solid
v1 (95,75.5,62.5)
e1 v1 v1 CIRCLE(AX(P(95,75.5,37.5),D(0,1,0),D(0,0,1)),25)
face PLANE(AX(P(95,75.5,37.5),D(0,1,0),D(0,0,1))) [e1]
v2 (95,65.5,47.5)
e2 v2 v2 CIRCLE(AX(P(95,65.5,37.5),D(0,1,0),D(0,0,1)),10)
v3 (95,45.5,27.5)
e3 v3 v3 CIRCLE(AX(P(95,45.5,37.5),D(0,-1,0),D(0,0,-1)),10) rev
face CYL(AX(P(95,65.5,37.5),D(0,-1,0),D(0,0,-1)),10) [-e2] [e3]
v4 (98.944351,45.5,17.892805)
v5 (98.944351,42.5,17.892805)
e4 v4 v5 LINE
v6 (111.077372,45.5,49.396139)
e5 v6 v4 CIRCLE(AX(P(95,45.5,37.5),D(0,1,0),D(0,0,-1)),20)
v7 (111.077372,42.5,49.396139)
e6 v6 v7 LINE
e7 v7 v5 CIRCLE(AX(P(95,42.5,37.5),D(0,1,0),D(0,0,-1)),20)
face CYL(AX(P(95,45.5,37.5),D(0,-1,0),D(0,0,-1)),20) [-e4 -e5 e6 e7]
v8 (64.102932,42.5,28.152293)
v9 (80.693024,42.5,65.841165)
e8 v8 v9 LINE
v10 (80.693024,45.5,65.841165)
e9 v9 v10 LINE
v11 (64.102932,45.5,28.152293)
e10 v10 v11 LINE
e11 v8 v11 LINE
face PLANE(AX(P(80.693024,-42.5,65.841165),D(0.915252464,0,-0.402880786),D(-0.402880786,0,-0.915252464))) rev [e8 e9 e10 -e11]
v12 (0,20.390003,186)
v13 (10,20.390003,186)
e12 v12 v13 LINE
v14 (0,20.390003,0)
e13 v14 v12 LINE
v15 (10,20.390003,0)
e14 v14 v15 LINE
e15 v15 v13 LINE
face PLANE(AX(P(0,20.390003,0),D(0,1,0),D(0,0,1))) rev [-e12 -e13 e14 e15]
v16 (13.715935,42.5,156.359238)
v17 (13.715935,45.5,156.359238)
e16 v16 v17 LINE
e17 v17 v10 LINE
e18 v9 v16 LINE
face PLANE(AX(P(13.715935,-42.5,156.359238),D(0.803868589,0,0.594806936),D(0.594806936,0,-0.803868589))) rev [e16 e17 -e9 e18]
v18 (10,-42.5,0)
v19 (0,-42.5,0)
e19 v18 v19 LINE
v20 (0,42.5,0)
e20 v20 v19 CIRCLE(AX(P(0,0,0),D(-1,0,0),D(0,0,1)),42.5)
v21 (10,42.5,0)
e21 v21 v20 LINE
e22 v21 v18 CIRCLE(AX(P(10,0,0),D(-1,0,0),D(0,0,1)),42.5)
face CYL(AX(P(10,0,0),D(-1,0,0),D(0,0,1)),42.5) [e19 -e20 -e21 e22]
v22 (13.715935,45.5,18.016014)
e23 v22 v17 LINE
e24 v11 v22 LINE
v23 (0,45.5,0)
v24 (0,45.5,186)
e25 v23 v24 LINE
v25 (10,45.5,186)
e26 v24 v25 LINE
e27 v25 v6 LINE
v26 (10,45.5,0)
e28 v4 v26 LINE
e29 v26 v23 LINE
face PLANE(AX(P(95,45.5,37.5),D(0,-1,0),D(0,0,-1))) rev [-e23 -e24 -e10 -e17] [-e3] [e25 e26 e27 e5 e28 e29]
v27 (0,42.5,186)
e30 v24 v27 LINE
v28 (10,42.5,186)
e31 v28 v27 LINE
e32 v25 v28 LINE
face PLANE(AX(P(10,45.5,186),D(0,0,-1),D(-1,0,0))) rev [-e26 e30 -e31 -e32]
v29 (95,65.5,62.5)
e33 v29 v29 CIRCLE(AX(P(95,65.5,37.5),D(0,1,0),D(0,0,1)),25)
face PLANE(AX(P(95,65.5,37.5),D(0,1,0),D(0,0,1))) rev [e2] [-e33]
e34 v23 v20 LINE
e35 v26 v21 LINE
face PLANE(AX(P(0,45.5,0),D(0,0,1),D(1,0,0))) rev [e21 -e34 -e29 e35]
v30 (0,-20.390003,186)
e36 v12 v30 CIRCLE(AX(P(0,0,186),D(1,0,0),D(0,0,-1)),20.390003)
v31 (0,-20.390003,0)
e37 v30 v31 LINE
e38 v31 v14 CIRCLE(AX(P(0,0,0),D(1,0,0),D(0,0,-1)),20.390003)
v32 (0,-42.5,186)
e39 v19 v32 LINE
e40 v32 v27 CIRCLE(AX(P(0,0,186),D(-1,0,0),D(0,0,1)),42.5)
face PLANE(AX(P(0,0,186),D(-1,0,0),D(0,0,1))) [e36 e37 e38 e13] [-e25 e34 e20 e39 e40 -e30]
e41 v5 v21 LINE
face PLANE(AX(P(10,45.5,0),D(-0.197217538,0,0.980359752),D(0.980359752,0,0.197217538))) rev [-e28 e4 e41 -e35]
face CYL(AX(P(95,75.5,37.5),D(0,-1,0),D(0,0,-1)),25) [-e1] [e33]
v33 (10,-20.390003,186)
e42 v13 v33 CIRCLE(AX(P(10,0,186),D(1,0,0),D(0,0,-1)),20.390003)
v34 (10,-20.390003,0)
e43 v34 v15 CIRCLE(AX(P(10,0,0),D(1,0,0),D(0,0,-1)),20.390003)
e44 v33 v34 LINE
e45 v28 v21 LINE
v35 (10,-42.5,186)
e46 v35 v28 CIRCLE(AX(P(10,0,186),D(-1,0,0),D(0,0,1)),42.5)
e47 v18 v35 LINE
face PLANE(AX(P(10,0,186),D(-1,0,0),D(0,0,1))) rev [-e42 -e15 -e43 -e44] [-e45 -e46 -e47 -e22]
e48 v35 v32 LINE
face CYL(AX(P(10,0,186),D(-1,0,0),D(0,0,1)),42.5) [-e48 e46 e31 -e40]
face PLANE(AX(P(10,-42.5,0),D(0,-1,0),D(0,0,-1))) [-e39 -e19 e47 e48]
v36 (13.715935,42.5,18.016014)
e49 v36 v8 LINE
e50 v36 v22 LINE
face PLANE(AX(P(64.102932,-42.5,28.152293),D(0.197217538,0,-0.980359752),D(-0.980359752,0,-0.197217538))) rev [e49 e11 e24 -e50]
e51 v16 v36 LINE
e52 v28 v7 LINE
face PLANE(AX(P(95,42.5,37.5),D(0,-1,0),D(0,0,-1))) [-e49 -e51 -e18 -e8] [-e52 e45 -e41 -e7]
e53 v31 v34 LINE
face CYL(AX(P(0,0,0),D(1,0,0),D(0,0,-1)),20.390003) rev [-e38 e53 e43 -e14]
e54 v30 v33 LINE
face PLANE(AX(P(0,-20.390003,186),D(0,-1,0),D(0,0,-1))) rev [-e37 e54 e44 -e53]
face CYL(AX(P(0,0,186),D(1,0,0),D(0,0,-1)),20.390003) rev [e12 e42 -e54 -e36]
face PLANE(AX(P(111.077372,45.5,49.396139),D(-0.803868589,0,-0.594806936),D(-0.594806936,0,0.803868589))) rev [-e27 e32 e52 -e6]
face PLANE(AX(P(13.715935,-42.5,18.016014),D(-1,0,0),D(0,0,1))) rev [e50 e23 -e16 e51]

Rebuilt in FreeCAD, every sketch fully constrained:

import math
import FreeCAD as App
import Part
import Sketcher
Q = App.Units.Quantity


def add_polygon(sketch, points):
    """Adds a closed chain of lines whose ends are joined by coincident constraints."""
    first, n = sketch.GeometryCount, len(points)
    for a, b in zip(points, points[1:] + points[:1]):
        sketch.addGeometry(Part.LineSegment(App.Vector(*a, 0), App.Vector(*b, 0)), False)
    for i in range(n):
        sketch.addConstraint(Sketcher.Constraint("Coincident", first + i, 2, first + (i + 1) % n, 1))

doc = App.newDocument("Part")
body = doc.addObject("PartDesign::Body", "Body")

sketch1 = doc.addObject("Sketcher::SketchObject", "Sketch")
body.addObject(sketch1)
sketch1.AttachmentSupport = (doc.YZ_Plane, [""])
sketch1.MapMode = "FlatFace"
sketch1.addGeometry([
    Part.LineSegment(App.Vector(42, 186, 0), App.Vector(42, 0, 0)),
    Part.ArcOfCircle(Part.Circle(App.Vector(0, 0, 0), App.Vector(0, 0, 1), 42), math.radians(180), math.radians(360)),
    Part.LineSegment(App.Vector(-42, 0, 0), App.Vector(-42, 186, 0)),
    Part.ArcOfCircle(Part.Circle(App.Vector(0, 186, 0), App.Vector(0, 0, 1), 42), math.radians(0), math.radians(180)),
], False)
sketch1.addConstraint([
    Sketcher.Constraint("Tangent", 0, 2, 1, 2),
    Sketcher.Constraint("Tangent", 1, 1, 2, 1),
    Sketcher.Constraint("Tangent", 2, 2, 3, 2),
    Sketcher.Constraint("Tangent", 3, 1, 0, 1),
    Sketcher.Constraint("Vertical", 0),
    Sketcher.Constraint("Vertical", 2),
    Sketcher.Constraint("Coincident", 1, 3, -1, 1),
    Sketcher.Constraint("Radius", 1, Q("42.5 mm")),
    Sketcher.Constraint("DistanceY", 0, 2, 0, 1, Q("186 mm")),
])
pad1 = doc.addObject("PartDesign::Pad", "Pad")
body.addObject(pad1)
pad1.Profile = sketch1
pad1.Length = 10

sketch2 = doc.addObject("Sketcher::SketchObject", "Sketch001")
body.addObject(sketch2)
sketch2.AttachmentSupport = (doc.XZ_Plane, [""])
sketch2.MapMode = "FlatFace"
sketch2.AttachmentOffset = App.Placement(App.Vector(0, 0, -42.5), App.Rotation())
sketch2.addGeometry([
    Part.LineSegment(App.Vector(99, 18, 0), App.Vector(10, 0, 0)),
    Part.LineSegment(App.Vector(10, 0, 0), App.Vector(0, 0, 0)),
    Part.LineSegment(App.Vector(0, 0, 0), App.Vector(0, 186, 0)),
    Part.LineSegment(App.Vector(0, 186, 0), App.Vector(10, 186, 0)),
    Part.LineSegment(App.Vector(10, 186, 0), App.Vector(111, 49, 0)),
    Part.ArcOfCircle(Part.Circle(App.Vector(95, 38, 0), App.Vector(0, 0, 1), 20), math.radians(-79), math.radians(36)),
], False)
sketch2.addConstraint([
    Sketcher.Constraint("Coincident", 0, 2, 1, 1),
    Sketcher.Constraint("Coincident", 1, 2, 2, 1),
    Sketcher.Constraint("Coincident", 2, 2, 3, 1),
    Sketcher.Constraint("Coincident", 3, 2, 4, 1),
    Sketcher.Constraint("Tangent", 4, 2, 5, 2),
    Sketcher.Constraint("Tangent", 5, 1, 0, 1),
    Sketcher.Constraint("Horizontal", 1),
    Sketcher.Constraint("Vertical", 2),
    Sketcher.Constraint("Horizontal", 3),
    Sketcher.Constraint("Coincident", 1, 2, -1, 1),
    Sketcher.Constraint("Vertical", 0, 2, 3, 2),
    Sketcher.Constraint("Radius", 5, Q("20 mm")),
    Sketcher.Constraint("DistanceX", 1, 2, 1, 1, Q("10 mm")),
    Sketcher.Constraint("DistanceY", 2, 1, 2, 2, Q("186 mm")),
    Sketcher.Constraint("DistanceX", -1, 1, 5, 3, Q("95 mm")),
    Sketcher.Constraint("DistanceY", -1, 1, 5, 3, Q("37.5 mm")),
])
pad2 = doc.addObject("PartDesign::Pad", "Pad001")
body.addObject(pad2)
pad2.Profile = sketch2
pad2.Length = 3
pad2.Reversed = True

sketch3 = doc.addObject("Sketcher::SketchObject", "Sketch002")
body.addObject(sketch3)
sketch3.AttachmentSupport = (doc.XZ_Plane, [""])
sketch3.MapMode = "FlatFace"
sketch3.AttachmentOffset = App.Placement(App.Vector(0, 0, -45.5), App.Rotation())
sketch3.addGeometry(Part.Circle(App.Vector(95, 38, 0), App.Vector(0, 0, 1), 10), False)
sketch3.addConstraint([
    Sketcher.Constraint("Diameter", 0, Q("20 mm")),
    Sketcher.Constraint("DistanceX", -1, 1, 0, 3, Q("95 mm")),
    Sketcher.Constraint("DistanceY", -1, 1, 0, 3, Q("37.5 mm")),
])
pad3 = doc.addObject("PartDesign::Pad", "Pad002")
body.addObject(pad3)
pad3.Profile = sketch3
pad3.Length = 20
pad3.Reversed = True

sketch4 = doc.addObject("Sketcher::SketchObject", "Sketch003")
body.addObject(sketch4)
sketch4.AttachmentSupport = (doc.YZ_Plane, [""])
sketch4.MapMode = "FlatFace"
sketch4.AttachmentOffset = App.Placement(App.Vector(0, 0, 10), App.Rotation())
sketch4.addGeometry([
    Part.LineSegment(App.Vector(20, 0, 0), App.Vector(20, 186, 0)),
    Part.ArcOfCircle(Part.Circle(App.Vector(0, 186, 0), App.Vector(0, 0, 1), 20), math.radians(0), math.radians(180)),
    Part.LineSegment(App.Vector(-20, 186, 0), App.Vector(-20, 0, 0)),
    Part.ArcOfCircle(Part.Circle(App.Vector(0, 0, 0), App.Vector(0, 0, 1), 20), math.radians(180), math.radians(360)),
], False)
sketch4.addConstraint([
    Sketcher.Constraint("Tangent", 0, 2, 1, 1),
    Sketcher.Constraint("Tangent", 1, 2, 2, 1),
    Sketcher.Constraint("Tangent", 2, 2, 3, 1),
    Sketcher.Constraint("Tangent", 3, 2, 0, 1),
    Sketcher.Constraint("Vertical", 0),
    Sketcher.Constraint("Vertical", 2),
    Sketcher.Constraint("Coincident", 3, 3, -1, 1),
    Sketcher.Constraint("DistanceY", 0, 1, 0, 2, Q("186 mm")),
    Sketcher.Constraint("Radius", 1, Q("20.390003 mm")),
])
pocket1 = doc.addObject("PartDesign::Pocket", "Pocket")
body.addObject(pocket1)
pocket1.Profile = sketch4
pocket1.Type = "ThroughAll"

sketch5 = doc.addObject("Sketcher::SketchObject", "Sketch004")
body.addObject(sketch5)
sketch5.AttachmentSupport = (doc.XZ_Plane, [""])
sketch5.MapMode = "FlatFace"
sketch5.AttachmentOffset = App.Placement(App.Vector(0, 0, -45.5), App.Rotation())
add_polygon(sketch5, [(64, 28), (14, 18), (14, 156), (81, 66)])
sketch5.addConstraint([
    Sketcher.Constraint("Vertical", 1),
    Sketcher.Constraint("DistanceY", 1, 1, 1, 2, Q("138.343223 mm")),
    Sketcher.Constraint("DistanceX", -1, 1, 3, 2, Q("64.102932 mm")),
    Sketcher.Constraint("DistanceX", 0, 2, 2, 2, Q("66.977089 mm")),
    Sketcher.Constraint("DistanceY", 0, 2, 2, 2, Q("47.825151 mm")),
    Sketcher.Constraint("DistanceX", 3, 2, 2, 2, Q("16.590092 mm")),
    Sketcher.Constraint("DistanceY", 0, 2, 3, 2, Q("10.136278 mm")),
    Sketcher.Constraint("DistanceY", -1, 1, 0, 2, Q("18.016014 mm")),
])
pocket2 = doc.addObject("PartDesign::Pocket", "Pocket001")
body.addObject(pocket2)
pocket2.Profile = sketch5
pocket2.Type = "ThroughAll"
pocket2.Reversed = True

sketch6 = doc.addObject("Sketcher::SketchObject", "Sketch005")
body.addObject(sketch6)
sketch6.AttachmentSupport = (doc.XZ_Plane, [""])
sketch6.MapMode = "FlatFace"
sketch6.AttachmentOffset = App.Placement(App.Vector(0, 0, -65.5), App.Rotation())
sketch6.addGeometry(Part.Circle(App.Vector(95, 38, 0), App.Vector(0, 0, 1), 25), False)
sketch6.addConstraint([
    Sketcher.Constraint("Diameter", 0, Q("50 mm")),
    Sketcher.Constraint("DistanceX", -1, 1, 0, 3, Q("95 mm")),
    Sketcher.Constraint("DistanceY", -1, 1, 0, 3, Q("37.5 mm")),
])
pad4 = doc.addObject("PartDesign::Pad", "Pad003")
body.addObject(pad4)
pad4.Profile = sketch6
pad4.Length = 10
pad4.Reversed = True

doc.recompute()
